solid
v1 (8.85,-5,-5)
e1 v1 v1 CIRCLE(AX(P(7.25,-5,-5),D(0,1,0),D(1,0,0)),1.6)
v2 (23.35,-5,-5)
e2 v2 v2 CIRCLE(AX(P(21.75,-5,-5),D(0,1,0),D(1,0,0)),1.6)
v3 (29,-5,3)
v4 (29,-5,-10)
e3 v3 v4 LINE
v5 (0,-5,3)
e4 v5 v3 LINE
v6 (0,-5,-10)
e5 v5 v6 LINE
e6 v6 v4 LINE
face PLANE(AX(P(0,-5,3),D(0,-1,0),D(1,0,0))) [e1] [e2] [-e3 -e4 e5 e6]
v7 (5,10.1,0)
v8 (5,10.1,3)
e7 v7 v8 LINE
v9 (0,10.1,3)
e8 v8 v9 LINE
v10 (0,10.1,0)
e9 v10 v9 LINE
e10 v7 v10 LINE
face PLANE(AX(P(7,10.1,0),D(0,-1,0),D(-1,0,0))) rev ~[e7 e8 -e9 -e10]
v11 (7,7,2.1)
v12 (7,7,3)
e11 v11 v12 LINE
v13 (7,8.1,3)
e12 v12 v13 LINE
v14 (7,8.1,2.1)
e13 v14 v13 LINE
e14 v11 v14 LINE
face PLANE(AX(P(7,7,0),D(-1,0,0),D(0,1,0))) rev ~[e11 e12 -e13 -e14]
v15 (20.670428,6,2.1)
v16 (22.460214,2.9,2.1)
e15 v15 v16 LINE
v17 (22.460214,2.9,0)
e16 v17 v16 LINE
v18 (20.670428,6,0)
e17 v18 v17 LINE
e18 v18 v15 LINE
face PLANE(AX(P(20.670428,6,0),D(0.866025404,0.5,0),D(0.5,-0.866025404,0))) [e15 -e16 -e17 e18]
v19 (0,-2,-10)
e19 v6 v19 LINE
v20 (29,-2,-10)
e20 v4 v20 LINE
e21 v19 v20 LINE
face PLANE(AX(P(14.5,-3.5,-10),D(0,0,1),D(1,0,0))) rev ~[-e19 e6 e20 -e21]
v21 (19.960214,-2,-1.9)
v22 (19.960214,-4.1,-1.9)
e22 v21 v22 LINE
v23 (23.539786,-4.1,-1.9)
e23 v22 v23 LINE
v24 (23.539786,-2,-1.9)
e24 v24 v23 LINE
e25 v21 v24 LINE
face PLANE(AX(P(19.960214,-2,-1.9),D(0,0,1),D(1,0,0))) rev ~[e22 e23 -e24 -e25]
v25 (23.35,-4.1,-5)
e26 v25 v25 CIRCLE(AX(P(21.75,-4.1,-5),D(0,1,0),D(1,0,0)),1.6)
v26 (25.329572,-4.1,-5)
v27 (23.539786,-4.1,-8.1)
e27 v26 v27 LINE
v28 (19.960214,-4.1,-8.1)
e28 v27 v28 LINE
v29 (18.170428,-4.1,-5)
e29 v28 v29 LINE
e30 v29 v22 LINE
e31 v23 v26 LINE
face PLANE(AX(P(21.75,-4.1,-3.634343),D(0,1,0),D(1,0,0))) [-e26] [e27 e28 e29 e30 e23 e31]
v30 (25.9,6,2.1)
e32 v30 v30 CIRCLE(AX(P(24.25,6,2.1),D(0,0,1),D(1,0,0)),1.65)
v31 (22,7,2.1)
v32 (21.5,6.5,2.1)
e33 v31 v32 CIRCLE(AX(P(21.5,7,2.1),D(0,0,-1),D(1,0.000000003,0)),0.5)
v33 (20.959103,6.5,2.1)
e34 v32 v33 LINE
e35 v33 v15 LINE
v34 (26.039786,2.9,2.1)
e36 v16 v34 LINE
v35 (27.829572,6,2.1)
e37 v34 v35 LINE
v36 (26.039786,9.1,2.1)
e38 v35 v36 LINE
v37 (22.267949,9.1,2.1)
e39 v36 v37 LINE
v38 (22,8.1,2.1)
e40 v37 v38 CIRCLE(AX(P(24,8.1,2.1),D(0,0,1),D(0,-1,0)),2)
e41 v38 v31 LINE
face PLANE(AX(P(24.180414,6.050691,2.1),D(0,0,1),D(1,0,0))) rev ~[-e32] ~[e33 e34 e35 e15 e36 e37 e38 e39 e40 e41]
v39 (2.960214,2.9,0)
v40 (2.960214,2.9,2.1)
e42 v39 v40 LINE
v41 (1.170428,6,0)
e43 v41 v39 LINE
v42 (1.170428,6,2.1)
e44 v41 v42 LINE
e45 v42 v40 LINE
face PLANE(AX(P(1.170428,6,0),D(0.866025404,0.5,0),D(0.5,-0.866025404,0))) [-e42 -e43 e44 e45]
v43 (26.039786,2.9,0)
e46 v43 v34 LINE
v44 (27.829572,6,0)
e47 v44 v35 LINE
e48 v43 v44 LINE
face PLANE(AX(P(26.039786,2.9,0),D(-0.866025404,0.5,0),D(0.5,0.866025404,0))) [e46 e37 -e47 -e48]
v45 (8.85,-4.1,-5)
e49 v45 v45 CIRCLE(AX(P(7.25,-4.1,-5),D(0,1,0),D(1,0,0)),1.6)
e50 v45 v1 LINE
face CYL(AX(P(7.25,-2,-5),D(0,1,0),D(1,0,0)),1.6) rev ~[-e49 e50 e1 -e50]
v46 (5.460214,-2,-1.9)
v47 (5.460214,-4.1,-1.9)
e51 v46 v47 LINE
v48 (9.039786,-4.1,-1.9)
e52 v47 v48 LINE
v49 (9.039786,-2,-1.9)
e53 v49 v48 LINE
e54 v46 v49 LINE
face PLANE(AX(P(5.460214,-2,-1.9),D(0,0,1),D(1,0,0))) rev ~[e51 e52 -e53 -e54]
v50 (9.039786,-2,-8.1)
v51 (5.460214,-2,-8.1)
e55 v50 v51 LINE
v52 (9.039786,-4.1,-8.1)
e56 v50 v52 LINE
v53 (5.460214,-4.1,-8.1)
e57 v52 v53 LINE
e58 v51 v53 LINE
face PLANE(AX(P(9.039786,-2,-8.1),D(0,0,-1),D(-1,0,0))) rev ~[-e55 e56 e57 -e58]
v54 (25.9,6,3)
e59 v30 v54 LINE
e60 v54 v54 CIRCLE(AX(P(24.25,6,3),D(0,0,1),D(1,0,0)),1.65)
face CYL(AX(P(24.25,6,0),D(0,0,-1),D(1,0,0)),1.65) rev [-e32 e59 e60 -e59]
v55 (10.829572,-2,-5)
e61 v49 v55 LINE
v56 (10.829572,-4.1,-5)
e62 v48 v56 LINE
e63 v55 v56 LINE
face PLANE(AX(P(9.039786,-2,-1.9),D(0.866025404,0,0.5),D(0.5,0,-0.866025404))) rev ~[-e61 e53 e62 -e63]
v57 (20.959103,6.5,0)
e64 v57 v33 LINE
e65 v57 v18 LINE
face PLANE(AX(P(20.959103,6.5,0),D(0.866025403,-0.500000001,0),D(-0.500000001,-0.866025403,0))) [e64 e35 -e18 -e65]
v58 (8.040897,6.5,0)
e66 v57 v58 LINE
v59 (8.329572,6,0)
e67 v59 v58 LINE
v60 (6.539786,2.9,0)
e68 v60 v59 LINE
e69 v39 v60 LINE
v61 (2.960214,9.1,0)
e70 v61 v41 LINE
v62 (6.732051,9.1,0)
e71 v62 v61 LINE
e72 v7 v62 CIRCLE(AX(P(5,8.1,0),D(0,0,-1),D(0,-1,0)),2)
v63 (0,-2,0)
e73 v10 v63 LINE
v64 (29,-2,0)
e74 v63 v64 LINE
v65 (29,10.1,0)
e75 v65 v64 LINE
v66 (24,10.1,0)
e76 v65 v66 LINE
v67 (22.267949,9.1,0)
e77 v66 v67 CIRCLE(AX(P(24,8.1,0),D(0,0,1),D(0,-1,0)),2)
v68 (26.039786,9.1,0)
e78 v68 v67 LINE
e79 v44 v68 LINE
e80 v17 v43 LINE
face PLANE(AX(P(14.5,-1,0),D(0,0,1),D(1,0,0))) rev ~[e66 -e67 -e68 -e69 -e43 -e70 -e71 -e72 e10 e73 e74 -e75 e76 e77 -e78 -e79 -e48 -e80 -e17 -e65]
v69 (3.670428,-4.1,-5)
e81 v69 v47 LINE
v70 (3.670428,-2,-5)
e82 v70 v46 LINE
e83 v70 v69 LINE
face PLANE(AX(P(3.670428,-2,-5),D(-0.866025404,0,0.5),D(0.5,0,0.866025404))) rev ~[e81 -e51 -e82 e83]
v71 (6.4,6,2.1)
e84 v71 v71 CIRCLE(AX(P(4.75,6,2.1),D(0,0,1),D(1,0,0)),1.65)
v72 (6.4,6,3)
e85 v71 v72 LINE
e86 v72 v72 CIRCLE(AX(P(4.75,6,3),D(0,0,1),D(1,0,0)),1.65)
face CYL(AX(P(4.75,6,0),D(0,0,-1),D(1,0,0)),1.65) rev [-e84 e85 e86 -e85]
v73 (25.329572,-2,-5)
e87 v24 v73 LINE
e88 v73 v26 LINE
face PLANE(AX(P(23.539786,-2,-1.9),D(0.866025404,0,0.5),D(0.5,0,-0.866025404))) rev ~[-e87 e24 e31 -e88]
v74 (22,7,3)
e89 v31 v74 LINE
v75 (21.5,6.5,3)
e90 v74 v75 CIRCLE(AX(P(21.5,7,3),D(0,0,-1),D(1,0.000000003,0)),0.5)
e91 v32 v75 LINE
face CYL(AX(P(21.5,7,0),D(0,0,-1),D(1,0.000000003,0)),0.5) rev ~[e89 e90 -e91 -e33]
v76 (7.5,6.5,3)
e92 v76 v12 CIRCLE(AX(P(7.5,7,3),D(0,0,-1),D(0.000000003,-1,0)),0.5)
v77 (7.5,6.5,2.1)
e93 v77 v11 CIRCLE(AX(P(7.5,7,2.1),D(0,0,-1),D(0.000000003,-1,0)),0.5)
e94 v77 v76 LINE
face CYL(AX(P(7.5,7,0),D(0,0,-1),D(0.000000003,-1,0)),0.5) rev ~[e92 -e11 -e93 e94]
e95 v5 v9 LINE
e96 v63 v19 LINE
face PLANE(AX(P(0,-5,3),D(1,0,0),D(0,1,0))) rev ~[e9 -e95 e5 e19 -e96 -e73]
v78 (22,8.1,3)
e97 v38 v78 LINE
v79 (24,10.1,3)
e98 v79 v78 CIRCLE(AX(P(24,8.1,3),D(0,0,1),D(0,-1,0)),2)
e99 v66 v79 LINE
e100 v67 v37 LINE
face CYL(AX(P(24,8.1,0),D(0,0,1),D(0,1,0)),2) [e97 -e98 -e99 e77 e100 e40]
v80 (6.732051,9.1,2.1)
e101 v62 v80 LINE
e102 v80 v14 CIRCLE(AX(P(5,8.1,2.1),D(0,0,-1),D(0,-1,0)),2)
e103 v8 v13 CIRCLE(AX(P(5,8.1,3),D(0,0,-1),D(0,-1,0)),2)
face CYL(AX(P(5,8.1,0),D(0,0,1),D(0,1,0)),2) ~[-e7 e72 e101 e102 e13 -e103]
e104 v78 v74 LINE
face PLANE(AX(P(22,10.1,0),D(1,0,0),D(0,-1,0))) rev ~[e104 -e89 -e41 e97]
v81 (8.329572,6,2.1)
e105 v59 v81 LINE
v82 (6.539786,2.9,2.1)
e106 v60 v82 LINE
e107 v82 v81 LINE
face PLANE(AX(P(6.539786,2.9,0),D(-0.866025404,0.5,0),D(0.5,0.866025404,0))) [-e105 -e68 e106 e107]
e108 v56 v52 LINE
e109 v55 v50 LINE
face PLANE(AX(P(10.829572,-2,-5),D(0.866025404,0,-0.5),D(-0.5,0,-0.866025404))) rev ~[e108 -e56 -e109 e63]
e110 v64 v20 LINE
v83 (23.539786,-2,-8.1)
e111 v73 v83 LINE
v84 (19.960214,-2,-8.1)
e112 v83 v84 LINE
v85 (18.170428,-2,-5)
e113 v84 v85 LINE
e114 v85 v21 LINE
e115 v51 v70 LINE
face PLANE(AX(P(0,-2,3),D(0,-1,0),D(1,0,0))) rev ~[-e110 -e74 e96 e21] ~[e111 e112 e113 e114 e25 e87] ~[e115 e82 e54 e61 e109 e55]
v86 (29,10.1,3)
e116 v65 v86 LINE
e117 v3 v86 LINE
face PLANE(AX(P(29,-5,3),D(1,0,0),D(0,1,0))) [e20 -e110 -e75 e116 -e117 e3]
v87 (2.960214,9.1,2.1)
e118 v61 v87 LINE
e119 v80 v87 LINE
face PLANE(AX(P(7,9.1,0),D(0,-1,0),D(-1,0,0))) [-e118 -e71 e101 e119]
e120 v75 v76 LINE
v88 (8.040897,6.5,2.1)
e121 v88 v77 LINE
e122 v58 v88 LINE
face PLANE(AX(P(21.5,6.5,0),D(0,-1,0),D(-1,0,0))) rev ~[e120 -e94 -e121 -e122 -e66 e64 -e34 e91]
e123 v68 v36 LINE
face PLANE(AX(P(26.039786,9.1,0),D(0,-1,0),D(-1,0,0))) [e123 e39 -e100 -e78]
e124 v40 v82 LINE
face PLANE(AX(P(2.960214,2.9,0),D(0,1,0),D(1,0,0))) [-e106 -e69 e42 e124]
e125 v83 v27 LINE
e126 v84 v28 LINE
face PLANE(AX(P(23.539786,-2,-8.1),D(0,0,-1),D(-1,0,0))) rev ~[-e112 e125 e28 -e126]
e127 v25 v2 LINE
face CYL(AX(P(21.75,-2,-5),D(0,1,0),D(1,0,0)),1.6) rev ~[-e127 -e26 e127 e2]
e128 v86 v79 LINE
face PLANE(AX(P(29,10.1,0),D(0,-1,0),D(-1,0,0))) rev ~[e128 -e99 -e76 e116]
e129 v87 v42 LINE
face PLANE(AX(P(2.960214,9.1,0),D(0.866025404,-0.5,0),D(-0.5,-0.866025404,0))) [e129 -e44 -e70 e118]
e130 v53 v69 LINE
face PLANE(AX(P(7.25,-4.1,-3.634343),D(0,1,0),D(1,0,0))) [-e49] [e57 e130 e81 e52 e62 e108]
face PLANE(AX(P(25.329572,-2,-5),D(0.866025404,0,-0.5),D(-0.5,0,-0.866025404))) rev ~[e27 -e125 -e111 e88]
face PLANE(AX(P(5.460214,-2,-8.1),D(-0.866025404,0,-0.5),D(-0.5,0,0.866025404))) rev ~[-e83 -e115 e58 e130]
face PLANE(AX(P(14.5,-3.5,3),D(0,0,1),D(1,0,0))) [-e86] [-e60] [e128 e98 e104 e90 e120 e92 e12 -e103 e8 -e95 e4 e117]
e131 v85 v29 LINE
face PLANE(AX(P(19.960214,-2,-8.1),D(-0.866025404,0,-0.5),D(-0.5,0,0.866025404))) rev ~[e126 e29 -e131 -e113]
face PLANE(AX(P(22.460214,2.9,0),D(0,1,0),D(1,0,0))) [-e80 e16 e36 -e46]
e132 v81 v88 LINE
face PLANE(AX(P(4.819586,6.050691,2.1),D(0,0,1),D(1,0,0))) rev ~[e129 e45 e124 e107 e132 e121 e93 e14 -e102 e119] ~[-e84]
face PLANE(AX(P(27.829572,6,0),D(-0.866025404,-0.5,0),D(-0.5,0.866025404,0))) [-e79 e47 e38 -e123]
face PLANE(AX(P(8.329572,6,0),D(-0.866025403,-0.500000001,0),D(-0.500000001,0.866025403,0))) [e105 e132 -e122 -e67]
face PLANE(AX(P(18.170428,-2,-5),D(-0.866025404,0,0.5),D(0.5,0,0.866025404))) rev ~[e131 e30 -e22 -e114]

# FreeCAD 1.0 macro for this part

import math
import FreeCAD as App
import Part
import Sketcher
Q = App.Units.Quantity


def edges_at(feature, points):
    """Names of the edges that pass closest to the given points."""
    edges = feature.Shape.Edges
    near = lambda p: min(range(len(edges)), key=lambda i: edges[i].distToShape(Part.Vertex(*p))[0])
    return sorted({f"Edge{near(p) + 1}" for p in points})


def add_polygon(sketch, points):
    """Adds a closed chain of lines whose ends are joined by coincident constraints."""
    first, n = sketch.GeometryCount, len(points)
    for a, b in zip(points, points[1:] + points[:1]):
        sketch.addGeometry(Part.LineSegment(App.Vector(*a, 0), App.Vector(*b, 0)), False)
    for i in range(n):
        sketch.addConstraint(Sketcher.Constraint("Coincident", first + i, 2, first + (i + 1) % n, 1))

doc = App.newDocument("Part")
body = doc.addObject("PartDesign::Body", "Body")

sketch1 = body.newObject("Sketcher::SketchObject", "Sketch")
sketch1.AttachmentSupport = (doc.getObject("XY_Plane"), [""])
sketch1.MapMode = "FlatFace"
sketch1.addGeometry([
    Part.LineSegment(App.Vector(0, 0, 0), App.Vector(29, 0, 0)),
    Part.LineSegment(App.Vector(29, 0, 0), App.Vector(29, 10.1, 0)),
    Part.LineSegment(App.Vector(29, 10.1, 0), App.Vector(22, 10.1, 0)),
    Part.LineSegment(App.Vector(22, 10.1, 0), App.Vector(22, 7, 0)),
    Part.ArcOfCircle(Part.Circle(App.Vector(21.5, 7, 0), App.Vector(0, 0, 1), 0.5), math.radians(-90), math.radians(0)),
    Part.LineSegment(App.Vector(21.5, 6.5, 0), App.Vector(7.5, 6.5, 0)),
    Part.ArcOfCircle(Part.Circle(App.Vector(7.5, 7, 0), App.Vector(0, 0, 1), 0.5), math.radians(180), math.radians(270)),
    Part.LineSegment(App.Vector(7, 7, 0), App.Vector(7, 10.1, 0)),
    Part.LineSegment(App.Vector(7, 10.1, 0), App.Vector(0, 10.1, 0)),
    Part.LineSegment(App.Vector(0, 10.1, 0), App.Vector(0, 0, 0)),
    Part.Circle(App.Vector(4.75, 6, 0), App.Vector(0, 0, 1), 1.65),
    Part.Circle(App.Vector(24.25, 6, 0), App.Vector(0, 0, 1), 1.65),
], False)
sketch1.addConstraint([
    Sketcher.Constraint("Coincident", 0, 2, 1, 1),
    Sketcher.Constraint("Coincident", 1, 2, 2, 1),
    Sketcher.Constraint("Coincident", 2, 2, 3, 1),
    Sketcher.Constraint("Tangent", 3, 2, 4, 2),
    Sketcher.Constraint("Tangent", 4, 1, 5, 1),
    Sketcher.Constraint("Tangent", 5, 2, 6, 2),
    Sketcher.Constraint("Tangent", 6, 1, 7, 1),
    Sketcher.Constraint("Coincident", 7, 2, 8, 1),
    Sketcher.Constraint("Coincident", 8, 2, 9, 1),
    Sketcher.Constraint("Coincident", 9, 2, 0, 1),
    Sketcher.Constraint("Horizontal", 0),
    Sketcher.Constraint("Vertical", 1),
    Sketcher.Constraint("Horizontal", 2),
    Sketcher.Constraint("Vertical", 3),
    Sketcher.Constraint("Horizontal", 5),
    Sketcher.Constraint("Vertical", 7),
    Sketcher.Constraint("Horizontal", 8),
    Sketcher.Constraint("Vertical", 9),
    Sketcher.Constraint("Coincident", 9, 2, -1, 1),
    Sketcher.Constraint("Equal", 4, 6),
    Sketcher.Constraint("Equal", 10, 11),
    Sketcher.Constraint("Horizontal", 10, 3, 11, 3),
    Sketcher.Constraint("Horizontal", 2, 2, 7, 2),
    Sketcher.Constraint("Equal", 2, 8),
    Sketcher.Constraint("Diameter", 10, Q("3.3 mm")),
    Sketcher.Constraint("Radius", 4, Q("0.5 mm")),
    Sketcher.Constraint("DistanceX", 0, 1, 0, 2, Q("29 mm")),
    Sketcher.Constraint("DistanceX", 2, 2, 2, 1, Q("7 mm")),
    Sketcher.Constraint("DistanceY", 1, 1, 1, 2, Q("10.1 mm")),
    Sketcher.Constraint("DistanceY", 3, 2, 3, 1, Q("3.1 mm")),
    Sketcher.Constraint("DistanceY", -1, 1, 10, 3, Q("6 mm")),
    Sketcher.Constraint("DistanceX", 10, 3, 11, 3, Q("19.5 mm")),
    Sketcher.Constraint("DistanceX", -1, 1, 10, 3, Q("4.75 mm")),
])
pad1 = body.newObject("PartDesign::Pad", "Pad")
pad1.Profile = sketch1
pad1.Length = 3

sketch2 = body.newObject("Sketcher::SketchObject", "Sketch001")
sketch2.AttachmentSupport = (doc.getObject("XY_Plane"), [""])
sketch2.MapMode = "FlatFace"
sketch2.addGeometry([
    Part.LineSegment(App.Vector(2.96, 9.1, 0), App.Vector(1.17, 6, 0)),
    Part.LineSegment(App.Vector(1.17, 6, 0), App.Vector(2.96, 2.9, 0)),
    Part.LineSegment(App.Vector(2.96, 2.9, 0), App.Vector(6.54, 2.9, 0)),
    Part.LineSegment(App.Vector(6.54, 2.9, 0), App.Vector(8.33, 6, 0)),
    Part.LineSegment(App.Vector(8.33, 6, 0), App.Vector(8.04, 6.5, 0)),
    Part.LineSegment(App.Vector(8.04, 6.5, 0), App.Vector(7.5, 6.5, 0)),
    Part.ArcOfCircle(Part.Circle(App.Vector(7.5, 7, 0), App.Vector(0, 0, 1), 0.5), math.radians(180), math.radians(270)),
    Part.LineSegment(App.Vector(7, 7, 0), App.Vector(7, 9.1, 0)),
    Part.LineSegment(App.Vector(7, 9.1, 0), App.Vector(2.96, 9.1, 0)),
    Part.Circle(App.Vector(4.75, 6, 0), App.Vector(0, 0, 1), 1.65),
    Part.LineSegment(App.Vector(27.83, 6, 0), App.Vector(26.04, 9.1, 0)),
    Part.LineSegment(App.Vector(26.04, 9.1, 0), App.Vector(22, 9.1, 0)),
    Part.LineSegment(App.Vector(22, 9.1, 0), App.Vector(22, 7, 0)),
    Part.ArcOfCircle(Part.Circle(App.Vector(21.5, 7, 0), App.Vector(0, 0, 1), 0.5), math.radians(-90), math.radians(0)),
    Part.LineSegment(App.Vector(21.5, 6.5, 0), App.Vector(20.96, 6.5, 0)),
    Part.LineSegment(App.Vector(20.96, 6.5, 0), App.Vector(20.67, 6, 0)),
    Part.LineSegment(App.Vector(20.67, 6, 0), App.Vector(22.46, 2.9, 0)),
    Part.LineSegment(App.Vector(22.46, 2.9, 0), App.Vector(26.04, 2.9, 0)),
    Part.LineSegment(App.Vector(26.04, 2.9, 0), App.Vector(27.83, 6, 0)),
    Part.Circle(App.Vector(24.25, 6, 0), App.Vector(0, 0, 1), 1.65),
], False)
sketch2.addConstraint([
    Sketcher.Constraint("Coincident", 0, 2, 1, 1),
    Sketcher.Constraint("Coincident", 1, 2, 2, 1),
    Sketcher.Constraint("Coincident", 2, 2, 3, 1),
    Sketcher.Constraint("Coincident", 3, 2, 4, 1),
    Sketcher.Constraint("Coincident", 4, 2, 5, 1),
    Sketcher.Constraint("Tangent", 5, 2, 6, 2),
    Sketcher.Constraint("Tangent", 6, 1, 7, 1),
    Sketcher.Constraint("Coincident", 7, 2, 8, 1),
    Sketcher.Constraint("Coincident", 8, 2, 0, 1),
    Sketcher.Constraint("Coincident", 10, 2, 11, 1),
    Sketcher.Constraint("Coincident", 11, 2, 12, 1),
    Sketcher.Constraint("Tangent", 12, 2, 13, 2),
    Sketcher.Constraint("Tangent", 13, 1, 14, 1),
    Sketcher.Constraint("Coincident", 14, 2, 15, 1),
    Sketcher.Constraint("Coincident", 15, 2, 16, 1),
    Sketcher.Constraint("Coincident", 16, 2, 17, 1),
    Sketcher.Constraint("Coincident", 17, 2, 18, 1),
    Sketcher.Constraint("Coincident", 18, 2, 10, 1),
    Sketcher.Constraint("Horizontal", 2),
    Sketcher.Constraint("Horizontal", 5),
    Sketcher.Constraint("Vertical", 7),
    Sketcher.Constraint("Horizontal", 8),
    Sketcher.Constraint("Horizontal", 11),
    Sketcher.Constraint("Vertical", 12),
    Sketcher.Constraint("Horizontal", 14),
    Sketcher.Constraint("Horizontal", 17),
    Sketcher.Constraint("Equal", 6, 13),
    Sketcher.Constraint("Equal", 9, 19),
    Sketcher.Constraint("Parallel", 0, 3),
    Sketcher.Constraint("Parallel", 1, 4),
    Sketcher.Constraint("Parallel", 4, 10),
    Sketcher.Constraint("Parallel", 3, 15),
    Sketcher.Constraint("Parallel", 10, 16),
    Sketcher.Constraint("Parallel", 15, 18),
    Sketcher.Constraint("Horizontal", 6, 3, 13, 3),
    Sketcher.Constraint("Horizontal", 9, 3, 19, 3),
    Sketcher.Constraint("Horizontal", 19, 3, 0, 2),
    Sketcher.Constraint("Horizontal", 0, 2, 3, 2),
    Sketcher.Constraint("Horizontal", 8, 2, 10, 2),
    Sketcher.Constraint("Horizontal", 3, 2, 15, 2),
    Sketcher.Constraint("Horizontal", 2, 2, 16, 2),
    Sketcher.Constraint("Horizontal", 15, 2, 18, 2),
    Sketcher.Constraint("Vertical", 1, 2, 8, 2),
    Sketcher.Constraint("Vertical", 10, 2, 17, 2),
    Sketcher.Constraint("Equal", 8, 11),
    Sketcher.Constraint("Equal", 5, 14),
    Sketcher.Constraint("Diameter", 9, Q("3.3 mm")),
    Sketcher.Constraint("Radius", 6, Q("0.5 mm")),
    Sketcher.Constraint("Angle", 0, Q("-120 deg")),
    Sketcher.Constraint("DistanceY", 7, 1, 7, 2, Q("2.1 mm")),
    Sketcher.Constraint("DistanceY", -1, 1, 6, 3, Q("7 mm")),
    Sketcher.Constraint("DistanceY", -1, 1, 9, 3, Q("6 mm")),
    Sketcher.Constraint("DistanceX", -1, 1, 6, 1, Q("7 mm")),
    Sketcher.Constraint("DistanceX", -1, 1, 11, 2, Q("22 mm")),
    Sketcher.Constraint("DistanceX", 9, 3, 19, 3, Q("19.5 mm")),
    Sketcher.Constraint("DistanceX", -1, 1, 9, 3, Q("4.75 mm")),
    Sketcher.Constraint("DistanceX", 2, 1, 2, 2, Q("3.579572 mm")),
    Sketcher.Constraint("DistanceX", 5, 2, 5, 1, Q("0.540897 mm")),
])
pocket1 = body.newObject("PartDesign::Pocket", "Pocket")
pocket1.Profile = sketch2
pocket1.Length = 2.1
pocket1.Reversed = True
doc.recompute()

fillet = body.newObject("PartDesign::Fillet", "Fillet")
fillet.Base = (pocket1, edges_at(pocket1, [(7, 10.1, 1.5), (22, 10.1, 1.5)]))
fillet.Radius = 2

sketch3 = body.newObject("Sketcher::SketchObject", "Sketch002")
sketch3.AttachmentSupport = (doc.getObject("XY_Plane"), [""])
sketch3.MapMode = "FlatFace"
sketch3.AttachmentOffset = App.Placement(App.Vector(0, 0, 3), App.Rotation())
add_polygon(sketch3, [(0, 0), (0, -2), (29, -2), (29, 0)])
sketch3.addConstraint([
    Sketcher.Constraint("Vertical", 0),
    Sketcher.Constraint("Horizontal", 1),
    Sketcher.Constraint("Vertical", 2),
    Sketcher.Constraint("Horizontal", 3),
    Sketcher.Constraint("Coincident", 3, 2, -1, 1),
    Sketcher.Constraint("DistanceX", 1, 1, 1, 2, Q("29 mm")),
    Sketcher.Constraint("DistanceY", 0, 2, 0, 1, Q("2 mm")),
])
pad2 = body.newObject("PartDesign::Pad", "Pad001")
pad2.Profile = sketch3
pad2.Length = 3
pad2.Reversed = True

sketch4 = body.newObject("Sketcher::SketchObject", "Sketch003")
sketch4.AttachmentSupport = (doc.getObject("XY_Plane"), [""])
sketch4.MapMode = "FlatFace"
sketch4.AttachmentOffset = App.Placement(App.Vector(0, 0, 3), App.Rotation())
add_polygon(sketch4, [(0, -2), (0, -5), (29, -5), (29, -2)])
sketch4.addConstraint([
    Sketcher.Constraint("Vertical", 0),
    Sketcher.Constraint("Horizontal", 1),
    Sketcher.Constraint("Vertical", 2),
    Sketcher.Constraint("Horizontal", 3),
    Sketcher.Constraint("PointOnObject", 0, 2, -2),
    Sketcher.Constraint("DistanceX", 1, 1, 1, 2, Q("29 mm")),
    Sketcher.Constraint("DistanceY", 0, 2, 0, 1, Q("3 mm")),
    Sketcher.Constraint("DistanceY", 0, 2, -1, 1, Q("5 mm")),
])
pad3 = body.newObject("PartDesign::Pad", "Pad002")
pad3.Profile = sketch4
pad3.Length = 13
pad3.Reversed = True

sketch5 = body.newObject("Sketcher::SketchObject", "Sketch004")
sketch5.AttachmentSupport = (doc.getObject("XZ_Plane"), [""])
sketch5.MapMode = "FlatFace"
sketch5.AttachmentOffset = App.Placement(App.Vector(0, 0, 2), App.Rotation())
sketch5.addGeometry([
    Part.Circle(App.Vector(21.8, -5, 0), App.Vector(0, 0, 1), 1.6),
    Part.Circle(App.Vector(7.2, -5, 0), App.Vector(0, 0, 1), 1.6),
], False)
sketch5.addConstraint([
    Sketcher.Constraint("Equal", 0, 1),
    Sketcher.Constraint("Horizontal", 0, 3, 1, 3),
    Sketcher.Constraint("Diameter", 0, Q("3.2 mm")),
    Sketcher.Constraint("DistanceY", 0, 3, -1, 1, Q("5 mm")),
    Sketcher.Constraint("DistanceX", 1, 3, 0, 3, Q("14.5 mm")),
    Sketcher.Constraint("DistanceX", -1, 1, 0, 3, Q("21.75 mm")),
])
pocket2 = body.newObject("PartDesign::Pocket", "Pocket001")
pocket2.Profile = sketch5
pocket2.Type = "ThroughAll"
pocket2.Reversed = True

sketch6 = body.newObject("Sketcher::SketchObject", "Sketch005")
sketch6.AttachmentSupport = (doc.getObject("XZ_Plane"), [""])
sketch6.MapMode = "FlatFace"
sketch6.AttachmentOffset = App.Placement(App.Vector(0, 0, 2), App.Rotation())
add_polygon(sketch6, [(23.5, -1.9), (25.3, -5), (23.5, -8.1), (20, -8.1), (18.2, -5), (20, -1.9)])
sketch6.addGeometry(Part.Circle(App.Vector(21.8, -5, 0), App.Vector(0, 0, 1), 1.6), False)
add_polygon(sketch6, [(9, -1.9), (10.8, -5), (9, -8.1), (5.5, -8.1), (3.7, -5), (5.5, -1.9)])
sketch6.addGeometry(Part.Circle(App.Vector(7.2, -5, 0), App.Vector(0, 0, 1), 1.6), False)
sketch6.addConstraint([
    Sketcher.Constraint("Horizontal", 2),
    Sketcher.Constraint("Horizontal", 5),
    Sketcher.Constraint("Horizontal", 9),
    Sketcher.Constraint("Horizontal", 12),
    Sketcher.Constraint("Equal", 6, 13),
    Sketcher.Constraint("Parallel", 0, 3),
    Sketcher.Constraint("Parallel", 1, 4),
    Sketcher.Constraint("Parallel", 3, 7),
    Sketcher.Constraint("Parallel", 4, 8),
    Sketcher.Constraint("Parallel", 7, 10),
    Sketcher.Constraint("Parallel", 8, 11),
    Sketcher.Constraint("Horizontal", 6, 3, 13, 3),
    Sketcher.Constraint("Horizontal", 13, 3, 0, 2),
    Sketcher.Constraint("Horizontal", 0, 2, 3, 2),
    Sketcher.Constraint("Horizontal", 3, 2, 7, 2),
    Sketcher.Constraint("Horizontal", 2, 2, 8, 2),
    Sketcher.Constraint("Horizontal", 7, 2, 10, 2),
    Sketcher.Constraint("Horizontal", 5, 2, 11, 2),
    Sketcher.Constraint("Vertical", 2, 2, 4, 2),
    Sketcher.Constraint("Vertical", 1, 2, 5, 2),
    Sketcher.Constraint("Equal", 5, 9),
    Sketcher.Constraint("Diameter", 6, Q("3.2 mm")),
    Sketcher.Constraint("Angle", 0, Q("-60 deg")),
    Sketcher.Constraint("DistanceY", 6, 3, -1, 1, Q("5 mm")),
    Sketcher.Constraint("DistanceY", 1, 2, -1, 1, Q("8.1 mm")),
    Sketcher.Constraint("DistanceX", 13, 3, 6, 3, Q("14.5 mm")),
    Sketcher.Constraint("DistanceX", 9, 2, 2, 2, Q("14.5 mm")),
    Sketcher.Constraint("DistanceX", -1, 1, 6, 3, Q("21.75 mm")),
    Sketcher.Constraint("DistanceX", 2, 2, 2, 1, Q("3.579572 mm")),
    Sketcher.Constraint("DistanceX", -1, 1, 0, 2, Q("25.329572 mm")),
])
pocket3 = body.newObject("PartDesign::Pocket", "Pocket002")
pocket3.Profile = sketch6
pocket3.Length = 2.1
pocket3.Reversed = True

doc.recompute()
